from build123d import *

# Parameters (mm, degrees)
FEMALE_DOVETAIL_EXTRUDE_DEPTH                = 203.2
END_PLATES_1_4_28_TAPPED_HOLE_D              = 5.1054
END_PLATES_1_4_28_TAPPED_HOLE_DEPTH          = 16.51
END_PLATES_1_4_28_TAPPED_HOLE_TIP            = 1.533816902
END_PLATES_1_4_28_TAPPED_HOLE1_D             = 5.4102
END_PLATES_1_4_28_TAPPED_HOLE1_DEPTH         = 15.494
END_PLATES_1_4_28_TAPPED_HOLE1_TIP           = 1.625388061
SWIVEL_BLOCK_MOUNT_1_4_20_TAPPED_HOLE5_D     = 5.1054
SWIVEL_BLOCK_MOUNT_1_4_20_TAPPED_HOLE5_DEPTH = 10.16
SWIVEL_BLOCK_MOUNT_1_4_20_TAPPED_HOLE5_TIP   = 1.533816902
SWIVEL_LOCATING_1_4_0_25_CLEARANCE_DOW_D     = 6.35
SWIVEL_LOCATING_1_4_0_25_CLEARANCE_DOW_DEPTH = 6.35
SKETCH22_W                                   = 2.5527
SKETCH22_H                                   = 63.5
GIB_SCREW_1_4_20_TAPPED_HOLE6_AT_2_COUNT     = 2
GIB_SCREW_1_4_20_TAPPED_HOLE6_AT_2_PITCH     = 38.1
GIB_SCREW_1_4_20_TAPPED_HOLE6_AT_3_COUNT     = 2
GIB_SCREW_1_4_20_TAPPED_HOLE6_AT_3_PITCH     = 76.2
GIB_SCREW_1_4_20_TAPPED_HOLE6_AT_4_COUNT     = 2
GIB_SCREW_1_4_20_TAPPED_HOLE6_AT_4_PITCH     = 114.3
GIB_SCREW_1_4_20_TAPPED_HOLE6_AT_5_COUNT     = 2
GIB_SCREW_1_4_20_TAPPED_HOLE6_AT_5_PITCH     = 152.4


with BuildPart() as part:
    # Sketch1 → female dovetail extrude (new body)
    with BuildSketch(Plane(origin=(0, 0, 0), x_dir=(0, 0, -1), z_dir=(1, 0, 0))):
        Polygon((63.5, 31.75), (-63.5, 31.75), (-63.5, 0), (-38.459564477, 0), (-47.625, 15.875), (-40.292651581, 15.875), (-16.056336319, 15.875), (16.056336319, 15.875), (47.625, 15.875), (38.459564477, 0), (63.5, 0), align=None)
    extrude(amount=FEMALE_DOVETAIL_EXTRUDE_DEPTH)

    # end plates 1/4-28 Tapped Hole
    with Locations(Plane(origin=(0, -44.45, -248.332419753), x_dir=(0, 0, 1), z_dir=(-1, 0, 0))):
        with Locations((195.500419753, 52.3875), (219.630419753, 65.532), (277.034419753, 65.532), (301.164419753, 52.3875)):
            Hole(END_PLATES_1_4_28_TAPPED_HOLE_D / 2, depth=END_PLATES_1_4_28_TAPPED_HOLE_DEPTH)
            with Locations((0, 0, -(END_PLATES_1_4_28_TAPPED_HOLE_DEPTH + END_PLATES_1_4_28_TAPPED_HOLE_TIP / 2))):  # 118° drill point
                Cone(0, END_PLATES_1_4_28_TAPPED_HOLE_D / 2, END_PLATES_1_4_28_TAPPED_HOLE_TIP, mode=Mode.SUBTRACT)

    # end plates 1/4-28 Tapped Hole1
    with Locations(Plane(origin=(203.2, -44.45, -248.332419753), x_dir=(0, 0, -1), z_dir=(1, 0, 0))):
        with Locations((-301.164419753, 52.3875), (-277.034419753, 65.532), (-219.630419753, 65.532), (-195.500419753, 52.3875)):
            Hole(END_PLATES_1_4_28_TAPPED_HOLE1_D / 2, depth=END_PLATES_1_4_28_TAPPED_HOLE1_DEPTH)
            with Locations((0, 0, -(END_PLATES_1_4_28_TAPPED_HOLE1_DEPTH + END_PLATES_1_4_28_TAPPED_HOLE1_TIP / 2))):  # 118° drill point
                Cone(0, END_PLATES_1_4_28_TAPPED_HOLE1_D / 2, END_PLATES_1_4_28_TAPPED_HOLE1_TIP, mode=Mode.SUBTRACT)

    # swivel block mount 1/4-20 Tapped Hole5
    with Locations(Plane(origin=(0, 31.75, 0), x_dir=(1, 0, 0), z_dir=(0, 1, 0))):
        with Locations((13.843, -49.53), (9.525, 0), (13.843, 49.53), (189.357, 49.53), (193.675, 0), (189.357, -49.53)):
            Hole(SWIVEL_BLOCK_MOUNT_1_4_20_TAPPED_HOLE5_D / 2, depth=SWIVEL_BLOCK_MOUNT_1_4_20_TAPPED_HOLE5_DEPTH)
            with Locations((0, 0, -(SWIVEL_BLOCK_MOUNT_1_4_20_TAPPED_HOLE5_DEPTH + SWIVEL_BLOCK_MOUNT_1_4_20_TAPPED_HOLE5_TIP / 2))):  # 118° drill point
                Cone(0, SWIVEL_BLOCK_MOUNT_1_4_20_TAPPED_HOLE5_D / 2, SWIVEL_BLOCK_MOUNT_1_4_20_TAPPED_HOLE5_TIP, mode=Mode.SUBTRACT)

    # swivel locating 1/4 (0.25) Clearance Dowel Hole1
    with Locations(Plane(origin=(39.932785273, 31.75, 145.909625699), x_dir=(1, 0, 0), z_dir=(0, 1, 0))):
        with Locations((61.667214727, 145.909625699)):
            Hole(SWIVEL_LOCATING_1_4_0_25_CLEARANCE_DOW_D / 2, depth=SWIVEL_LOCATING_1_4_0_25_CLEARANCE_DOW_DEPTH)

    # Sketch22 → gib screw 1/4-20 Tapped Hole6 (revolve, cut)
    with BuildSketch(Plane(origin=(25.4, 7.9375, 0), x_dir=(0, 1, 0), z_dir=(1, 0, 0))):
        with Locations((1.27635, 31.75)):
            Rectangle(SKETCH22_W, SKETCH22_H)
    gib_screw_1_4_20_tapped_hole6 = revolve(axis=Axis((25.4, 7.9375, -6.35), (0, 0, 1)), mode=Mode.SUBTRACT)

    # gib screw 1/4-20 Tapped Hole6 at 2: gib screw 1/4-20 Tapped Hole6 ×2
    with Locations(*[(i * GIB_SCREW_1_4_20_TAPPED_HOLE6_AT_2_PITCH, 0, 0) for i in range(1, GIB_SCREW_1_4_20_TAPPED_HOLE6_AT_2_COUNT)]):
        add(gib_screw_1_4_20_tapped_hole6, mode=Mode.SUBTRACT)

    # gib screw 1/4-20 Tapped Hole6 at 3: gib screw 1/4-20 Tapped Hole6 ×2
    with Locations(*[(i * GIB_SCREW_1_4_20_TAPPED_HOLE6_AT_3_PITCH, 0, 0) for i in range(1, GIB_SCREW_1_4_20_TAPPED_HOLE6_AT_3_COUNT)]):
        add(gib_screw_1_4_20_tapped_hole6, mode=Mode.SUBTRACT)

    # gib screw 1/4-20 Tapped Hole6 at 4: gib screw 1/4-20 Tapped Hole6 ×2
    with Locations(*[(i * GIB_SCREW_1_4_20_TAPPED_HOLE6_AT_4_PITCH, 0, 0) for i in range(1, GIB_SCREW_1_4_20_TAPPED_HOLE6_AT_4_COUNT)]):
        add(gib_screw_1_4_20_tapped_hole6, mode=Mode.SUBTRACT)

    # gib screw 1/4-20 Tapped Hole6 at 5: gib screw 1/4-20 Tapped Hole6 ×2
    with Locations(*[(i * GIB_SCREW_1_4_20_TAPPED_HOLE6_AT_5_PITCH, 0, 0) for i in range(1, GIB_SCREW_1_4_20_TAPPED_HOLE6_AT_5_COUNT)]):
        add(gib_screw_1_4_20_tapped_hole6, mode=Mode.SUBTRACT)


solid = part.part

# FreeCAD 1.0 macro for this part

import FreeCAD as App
import Part
import Sketcher
from FreeCAD import Vector
Q = App.Units.Quantity

doc = App.newDocument("Part")
params = doc.addObject("Spreadsheet::Sheet", "Params")
for row, (alias, value) in enumerate([
    ("sketch1_height", "5 in"),
    ("sketch1_width", "1.25 in"),
    ("sketch1_height2", "3.75 in"),
    ("pad1_length", "8 in"),
    ("sketch2_diameter", "0.201 in"),
    ("hole_diameter", "0.201 in"),
    ("hole_depth", "0.65 in"),
    ("sketch3_diameter", "0.213 in"),
    ("hole2_diameter", "0.213 in"),
    ("hole2_depth", "0.61 in"),
    ("sketch4_diameter", "0.201 in"),
    ("hole3_diameter", "0.201 in"),
    ("hole3_depth", "0.4 in"),
    ("sketch5_diameter", "0.25 in"),
    ("hole4_diameter", "0.25 in"),
    ("hole4_depth", "0.25 in"),
    ("sketch6_height", "2.5 in"),
    ("groove_angle", "360 deg"),
    ("linearpattern_pitch", "1.5 in"),
    ("linearpattern2_pitch", "3 in"),
    ("linearpattern3_pitch", "4.5 in"),
    ("linearpattern4_pitch", "6 in"),
], start=1):
    params.set(f"A{row}", alias)
    params.set(f"B{row}", "=" + value)
    params.setAlias(f"B{row}", alias)

body = doc.addObject("PartDesign::Body", "Body")

sketch1 = body.newObject("Sketcher::SketchObject", "Sketch")
sketch1.AttachmentSupport = (doc.getObject("YZ_Plane"), [""])
sketch1.MapMode = "FlatFace"
sketch1.addGeometry([
    Part.LineSegment(Vector(32, -64, 0), Vector(32, 64, 0)),
    Part.LineSegment(Vector(32, 64, 0), Vector(0, 64, 0)),
    Part.LineSegment(Vector(0, 64, 0), Vector(0, 38, 0)),
    Part.LineSegment(Vector(0, 38, 0), Vector(16, 48, 0)),
    Part.LineSegment(Vector(16, 48, 0), Vector(16, -48, 0)),
    Part.LineSegment(Vector(16, -48, 0), Vector(0, -38, 0)),
    Part.LineSegment(Vector(0, -38, 0), Vector(0, -64, 0)),
    Part.LineSegment(Vector(0, -64, 0), Vector(32, -64, 0)),
], False)
sketch1.addConstraint([
    Sketcher.Constraint("Coincident", 0, 2, 1, 1),
    Sketcher.Constraint("Coincident", 1, 2, 2, 1),
    Sketcher.Constraint("Coincident", 2, 2, 3, 1),
    Sketcher.Constraint("Coincident", 3, 2, 4, 1),
    Sketcher.Constraint("Coincident", 4, 2, 5, 1),
    Sketcher.Constraint("Coincident", 5, 2, 6, 1),
    Sketcher.Constraint("Coincident", 6, 2, 7, 1),
    Sketcher.Constraint("Coincident", 7, 2, 0, 1),
    Sketcher.Constraint("Vertical", 0),
    Sketcher.Constraint("Horizontal", 1),
    Sketcher.Constraint("Vertical", 2),
    Sketcher.Constraint("Vertical", 4),
    Sketcher.Constraint("Vertical", 6),
    Sketcher.Constraint("Horizontal", 7),
    Sketcher.Constraint("Symmetric", 2, 2, 5, 2, -1, 1),
    Sketcher.Constraint("Symmetric", 1, 2, 6, 2, -1),
    Sketcher.Constraint("Equal", 3, 5),
    Sketcher.Constraint("DistanceY", 0, 1, 0, 2, Q("5 in")),
    Sketcher.Constraint("Angle", 3, Q("30 deg")),
    Sketcher.Constraint("DistanceX", 1, 2, 1, 1, Q("1.25 in")),
    Sketcher.Constraint("DistanceY", 4, 2, 4, 1, Q("3.75 in")),
    Sketcher.Constraint("DistanceX", -1, 1, 3, 2, Q("0.625 in")),
])
sketch1.setExpression("Constraints[17]", "Params.sketch1_height")
sketch1.setExpression("Constraints[19]", "Params.sketch1_width")
sketch1.setExpression("Constraints[20]", "Params.sketch1_height2")
pad1 = body.newObject("PartDesign::Pad", "Pad")
pad1.Profile = sketch1
pad1.setExpression("Length", "Params.pad1_length")

sketch2 = body.newObject("Sketcher::SketchObject", "Sketch001")
sketch2.AttachmentSupport = (doc.getObject("YZ_Plane"), [""])
sketch2.MapMode = "FlatFace"
sketch2.addGeometry([
    Part.Circle(Vector(7.9, -52.8, 0), Vector(0, 0, 1), 2.6),
    Part.Circle(Vector(21.1, -28.7, 0), Vector(0, 0, 1), 2.6),
    Part.Circle(Vector(21.1, 28.7, 0), Vector(0, 0, 1), 2.6),
    Part.Circle(Vector(7.9, 52.8, 0), Vector(0, 0, 1), 2.6),
], False)
sketch2.addConstraint([
    Sketcher.Constraint("Equal", 0, 1),
    Sketcher.Constraint("Equal", 1, 2),
    Sketcher.Constraint("Equal", 2, 3),
    Sketcher.Constraint("Symmetric", 1, 3, 2, 3, -1),
    Sketcher.Constraint("Symmetric", 0, 3, 3, 3, -1),
    Sketcher.Constraint("Diameter", 0, Q("0.201 in")),
    Sketcher.Constraint("DistanceY", 0, 3, -1, 1, Q("2.08 in")),
    Sketcher.Constraint("DistanceX", -1, 1, 1, 3, Q("0.83 in")),
    Sketcher.Constraint("DistanceY", 1, 3, -1, 1, Q("1.13 in")),
    Sketcher.Constraint("DistanceX", -1, 1, 0, 3, Q("0.3125 in")),
])
sketch2.setExpression("Constraints[5]", "Params.sketch2_diameter")
doc.recompute()
hole = body.newObject("PartDesign::Hole", "Hole")
hole.Profile = sketch2
hole.ThreadType = "None"
hole.setExpression("Diameter", "Params.hole_diameter")
hole.DepthType = "Dimension"
hole.setExpression("Depth", "Params.hole_depth")
hole.DrillPoint = "Angled"
hole.DrillPointAngle = 118
hole.Reversed = True

sketch3 = body.newObject("Sketcher::SketchObject", "Sketch002")
sketch3.AttachmentSupport = (doc.getObject("YZ_Plane"), [""])
sketch3.MapMode = "FlatFace"
sketch3.AttachmentOffset = App.Placement(Vector(0, 0, 8 * 25.4), App.Rotation())
sketch3.addGeometry([
    Part.Circle(Vector(7.9, 52.8, 0), Vector(0, 0, 1), 2.7),
    Part.Circle(Vector(21.1, 28.7, 0), Vector(0, 0, 1), 2.7),
    Part.Circle(Vector(21.1, -28.7, 0), Vector(0, 0, 1), 2.7),
    Part.Circle(Vector(7.9, -52.8, 0), Vector(0, 0, 1), 2.7),
], False)
sketch3.addConstraint([
    Sketcher.Constraint("Equal", 0, 1),
    Sketcher.Constraint("Equal", 1, 2),
    Sketcher.Constraint("Equal", 2, 3),
    Sketcher.Constraint("Symmetric", 1, 3, 2, 3, -1),
    Sketcher.Constraint("Symmetric", 0, 3, 3, 3, -1),
    Sketcher.Constraint("Diameter", 0, Q("0.213 in")),
    Sketcher.Constraint("DistanceY", -1, 1, 0, 3, Q("2.08 in")),
    Sketcher.Constraint("DistanceX", -1, 1, 1, 3, Q("0.83 in")),
    Sketcher.Constraint("DistanceY", -1, 1, 1, 3, Q("1.13 in")),
    Sketcher.Constraint("DistanceX", -1, 1, 0, 3, Q("0.3125 in")),
])
sketch3.setExpression("Constraints[5]", "Params.sketch3_diameter")
doc.recompute()
hole2 = body.newObject("PartDesign::Hole", "Hole001")
hole2.Profile = sketch3
hole2.ThreadType = "None"
hole2.setExpression("Diameter", "Params.hole2_diameter")
hole2.DepthType = "Dimension"
hole2.setExpression("Depth", "Params.hole2_depth")
hole2.DrillPoint = "Angled"
hole2.DrillPointAngle = 118

sketch4 = body.newObject("Sketcher::SketchObject", "Sketch003")
sketch4.AttachmentSupport = (doc.getObject("XZ_Plane"), [""])
sketch4.MapMode = "FlatFace"
sketch4.AttachmentOffset = App.Placement(Vector(0, 0, -1.25 * 25.4), App.Rotation())
sketch4.addGeometry([
    Part.Circle(Vector(13.8, 49.5, 0), Vector(0, 0, 1), 2.6),
    Part.Circle(Vector(9.5, 0, 0), Vector(0, 0, 1), 2.6),
    Part.Circle(Vector(13.8, -49.5, 0), Vector(0, 0, 1), 2.6),
    Part.Circle(Vector(189.4, -49.5, 0), Vector(0, 0, 1), 2.6),
    Part.Circle(Vector(193.7, 0, 0), Vector(0, 0, 1), 2.6),
    Part.Circle(Vector(189.4, 49.5, 0), Vector(0, 0, 1), 2.6),
], False)
sketch4.addConstraint([
    Sketcher.Constraint("Equal", 0, 1),
    Sketcher.Constraint("Equal", 1, 2),
    Sketcher.Constraint("Equal", 2, 3),
    Sketcher.Constraint("Equal", 3, 4),
    Sketcher.Constraint("Equal", 4, 5),
    Sketcher.Constraint("Symmetric", 0, 3, 2, 3, -1),
    Sketcher.Constraint("Symmetric", 3, 3, 5, 3, -1),
    Sketcher.Constraint("PointOnObject", 1, 3, -1),
    Sketcher.Constraint("PointOnObject", 4, 3, -1),
    Sketcher.Constraint("Horizontal", 2, 3, 3, 3),
    Sketcher.Constraint("Diameter", 0, Q("0.201 in")),
    Sketcher.Constraint("DistanceY", 2, 3, 0, 3, Q("3.9 in")),
    Sketcher.Constraint("DistanceX", 1, 3, 0, 3, Q("0.17 in")),
    Sketcher.Constraint("DistanceX", 2, 3, 3, 3, Q("6.91 in")),
    Sketcher.Constraint("DistanceX", 3, 3, 4, 3, Q("0.17 in")),
    Sketcher.Constraint("DistanceX", -1, 1, 0, 3, Q("0.545 in")),
])
sketch4.setExpression("Constraints[10]", "Params.sketch4_diameter")
doc.recompute()
hole3 = body.newObject("PartDesign::Hole", "Hole002")
hole3.Profile = sketch4
hole3.ThreadType = "None"
hole3.setExpression("Diameter", "Params.hole3_diameter")
hole3.DepthType = "Dimension"
hole3.setExpression("Depth", "Params.hole3_depth")
hole3.DrillPoint = "Angled"
hole3.DrillPointAngle = 118
hole3.Reversed = True

sketch5 = body.newObject("Sketcher::SketchObject", "Sketch004")
sketch5.AttachmentSupport = (doc.getObject("XZ_Plane"), [""])
sketch5.MapMode = "FlatFace"
sketch5.AttachmentOffset = App.Placement(Vector(0, 0, -1.25 * 25.4), App.Rotation())
sketch5.addGeometry(Part.Circle(Vector(101.6, 0, 0), Vector(0, 0, 1), 3.2), False)
sketch5.addConstraint([
    Sketcher.Constraint("PointOnObject", 0, 3, -1),
    Sketcher.Constraint("Diameter", 0, Q("0.25 in")),
    Sketcher.Constraint("DistanceX", -1, 1, 0, 3, Q("4 in")),
])
sketch5.setExpression("Constraints[1]", "Params.sketch5_diameter")
doc.recompute()
hole4 = body.newObject("PartDesign::Hole", "Hole003")
hole4.Profile = sketch5
hole4.ThreadType = "None"
hole4.setExpression("Diameter", "Params.hole4_diameter")
hole4.DepthType = "Dimension"
hole4.setExpression("Depth", "Params.hole4_depth")
hole4.DrillPoint = "Flat"
hole4.Reversed = True

sketch6 = body.newObject("Sketcher::SketchObject", "Sketch005")
sketch6.AttachmentSupport = (doc.getObject("YZ_Plane"), [""])
sketch6.MapMode = "FlatFace"
sketch6.AttachmentOffset = App.Placement(Vector(0, 0, 1 * 25.4), App.Rotation())
sketch6.addGeometry([
    Part.LineSegment(Vector(7.9, 63.5, 0), Vector(7.9, 0, 0)),
    Part.LineSegment(Vector(7.9, 0, 0), Vector(10.5, 0, 0)),
    Part.LineSegment(Vector(10.5, 0, 0), Vector(10.5, 63.5, 0)),
    Part.LineSegment(Vector(10.5, 63.5, 0), Vector(7.9, 63.5, 0)),
], False)
sketch6.addGeometry(Part.LineSegment(Vector(7.9, 0, 0), Vector(7.9, 63.5, 0)), True)
sketch6.addConstraint([
    Sketcher.Constraint("Coincident", 0, 2, 1, 1),
    Sketcher.Constraint("Coincident", 1, 2, 2, 1),
    Sketcher.Constraint("Coincident", 2, 2, 3, 1),
    Sketcher.Constraint("Coincident", 3, 2, 0, 1),
    Sketcher.Constraint("Vertical", 0),
    Sketcher.Constraint("Horizontal", 1),
    Sketcher.Constraint("Vertical", 2),
    Sketcher.Constraint("Horizontal", 3),
    Sketcher.Constraint("Vertical", 4),
    Sketcher.Constraint("Coincident", 4, 1, 0, 2),
    Sketcher.Constraint("PointOnObject", 0, 2, -1),
    Sketcher.Constraint("Horizontal", 2, 2, 4, 2),
    Sketcher.Constraint("DistanceY", 0, 2, 0, 1, Q("2.5 in")),
    Sketcher.Constraint("DistanceX", 1, 1, 1, 2, Q("0.1005 in")),
    Sketcher.Constraint("DistanceX", -1, 1, 0, 2, Q("0.3125 in")),
])
sketch6.setExpression("Constraints[12]", "Params.sketch6_height")
groove = body.newObject("PartDesign::Groove", "Groove")
groove.Profile = sketch6
groove.ReferenceAxis = (sketch6, ["Axis0"])
groove.setExpression("Angle", "Params.groove_angle")
doc.recompute()

linearpattern = body.newObject("PartDesign::LinearPattern", "LinearPattern")
linearpattern.Originals = [groove]
linearpattern.Direction = (doc.getObject("X_Axis"), [""])
linearpattern.Mode = "offset"
linearpattern.setExpression("Offset", "Params.linearpattern_pitch")
linearpattern.Occurrences = 2
body.Tip = linearpattern
doc.recompute()

linearpattern2 = body.newObject("PartDesign::LinearPattern", "LinearPattern001")
linearpattern2.Originals = [groove]
linearpattern2.Direction = (doc.getObject("X_Axis"), [""])
linearpattern2.Mode = "offset"
linearpattern2.setExpression("Offset", "Params.linearpattern2_pitch")
linearpattern2.Occurrences = 2
body.Tip = linearpattern2
doc.recompute()

linearpattern3 = body.newObject("PartDesign::LinearPattern", "LinearPattern002")
linearpattern3.Originals = [groove]
linearpattern3.Direction = (doc.getObject("X_Axis"), [""])
linearpattern3.Mode = "offset"
linearpattern3.setExpression("Offset", "Params.linearpattern3_pitch")
linearpattern3.Occurrences = 2
body.Tip = linearpattern3
doc.recompute()

linearpattern4 = body.newObject("PartDesign::LinearPattern", "LinearPattern003")
linearpattern4.Originals = [groove]
linearpattern4.Direction = (doc.getObject("X_Axis"), [""])
linearpattern4.Mode = "offset"
linearpattern4.setExpression("Offset", "Params.linearpattern4_pitch")
linearpattern4.Occurrences = 2
body.Tip = linearpattern4

doc.recompute()
